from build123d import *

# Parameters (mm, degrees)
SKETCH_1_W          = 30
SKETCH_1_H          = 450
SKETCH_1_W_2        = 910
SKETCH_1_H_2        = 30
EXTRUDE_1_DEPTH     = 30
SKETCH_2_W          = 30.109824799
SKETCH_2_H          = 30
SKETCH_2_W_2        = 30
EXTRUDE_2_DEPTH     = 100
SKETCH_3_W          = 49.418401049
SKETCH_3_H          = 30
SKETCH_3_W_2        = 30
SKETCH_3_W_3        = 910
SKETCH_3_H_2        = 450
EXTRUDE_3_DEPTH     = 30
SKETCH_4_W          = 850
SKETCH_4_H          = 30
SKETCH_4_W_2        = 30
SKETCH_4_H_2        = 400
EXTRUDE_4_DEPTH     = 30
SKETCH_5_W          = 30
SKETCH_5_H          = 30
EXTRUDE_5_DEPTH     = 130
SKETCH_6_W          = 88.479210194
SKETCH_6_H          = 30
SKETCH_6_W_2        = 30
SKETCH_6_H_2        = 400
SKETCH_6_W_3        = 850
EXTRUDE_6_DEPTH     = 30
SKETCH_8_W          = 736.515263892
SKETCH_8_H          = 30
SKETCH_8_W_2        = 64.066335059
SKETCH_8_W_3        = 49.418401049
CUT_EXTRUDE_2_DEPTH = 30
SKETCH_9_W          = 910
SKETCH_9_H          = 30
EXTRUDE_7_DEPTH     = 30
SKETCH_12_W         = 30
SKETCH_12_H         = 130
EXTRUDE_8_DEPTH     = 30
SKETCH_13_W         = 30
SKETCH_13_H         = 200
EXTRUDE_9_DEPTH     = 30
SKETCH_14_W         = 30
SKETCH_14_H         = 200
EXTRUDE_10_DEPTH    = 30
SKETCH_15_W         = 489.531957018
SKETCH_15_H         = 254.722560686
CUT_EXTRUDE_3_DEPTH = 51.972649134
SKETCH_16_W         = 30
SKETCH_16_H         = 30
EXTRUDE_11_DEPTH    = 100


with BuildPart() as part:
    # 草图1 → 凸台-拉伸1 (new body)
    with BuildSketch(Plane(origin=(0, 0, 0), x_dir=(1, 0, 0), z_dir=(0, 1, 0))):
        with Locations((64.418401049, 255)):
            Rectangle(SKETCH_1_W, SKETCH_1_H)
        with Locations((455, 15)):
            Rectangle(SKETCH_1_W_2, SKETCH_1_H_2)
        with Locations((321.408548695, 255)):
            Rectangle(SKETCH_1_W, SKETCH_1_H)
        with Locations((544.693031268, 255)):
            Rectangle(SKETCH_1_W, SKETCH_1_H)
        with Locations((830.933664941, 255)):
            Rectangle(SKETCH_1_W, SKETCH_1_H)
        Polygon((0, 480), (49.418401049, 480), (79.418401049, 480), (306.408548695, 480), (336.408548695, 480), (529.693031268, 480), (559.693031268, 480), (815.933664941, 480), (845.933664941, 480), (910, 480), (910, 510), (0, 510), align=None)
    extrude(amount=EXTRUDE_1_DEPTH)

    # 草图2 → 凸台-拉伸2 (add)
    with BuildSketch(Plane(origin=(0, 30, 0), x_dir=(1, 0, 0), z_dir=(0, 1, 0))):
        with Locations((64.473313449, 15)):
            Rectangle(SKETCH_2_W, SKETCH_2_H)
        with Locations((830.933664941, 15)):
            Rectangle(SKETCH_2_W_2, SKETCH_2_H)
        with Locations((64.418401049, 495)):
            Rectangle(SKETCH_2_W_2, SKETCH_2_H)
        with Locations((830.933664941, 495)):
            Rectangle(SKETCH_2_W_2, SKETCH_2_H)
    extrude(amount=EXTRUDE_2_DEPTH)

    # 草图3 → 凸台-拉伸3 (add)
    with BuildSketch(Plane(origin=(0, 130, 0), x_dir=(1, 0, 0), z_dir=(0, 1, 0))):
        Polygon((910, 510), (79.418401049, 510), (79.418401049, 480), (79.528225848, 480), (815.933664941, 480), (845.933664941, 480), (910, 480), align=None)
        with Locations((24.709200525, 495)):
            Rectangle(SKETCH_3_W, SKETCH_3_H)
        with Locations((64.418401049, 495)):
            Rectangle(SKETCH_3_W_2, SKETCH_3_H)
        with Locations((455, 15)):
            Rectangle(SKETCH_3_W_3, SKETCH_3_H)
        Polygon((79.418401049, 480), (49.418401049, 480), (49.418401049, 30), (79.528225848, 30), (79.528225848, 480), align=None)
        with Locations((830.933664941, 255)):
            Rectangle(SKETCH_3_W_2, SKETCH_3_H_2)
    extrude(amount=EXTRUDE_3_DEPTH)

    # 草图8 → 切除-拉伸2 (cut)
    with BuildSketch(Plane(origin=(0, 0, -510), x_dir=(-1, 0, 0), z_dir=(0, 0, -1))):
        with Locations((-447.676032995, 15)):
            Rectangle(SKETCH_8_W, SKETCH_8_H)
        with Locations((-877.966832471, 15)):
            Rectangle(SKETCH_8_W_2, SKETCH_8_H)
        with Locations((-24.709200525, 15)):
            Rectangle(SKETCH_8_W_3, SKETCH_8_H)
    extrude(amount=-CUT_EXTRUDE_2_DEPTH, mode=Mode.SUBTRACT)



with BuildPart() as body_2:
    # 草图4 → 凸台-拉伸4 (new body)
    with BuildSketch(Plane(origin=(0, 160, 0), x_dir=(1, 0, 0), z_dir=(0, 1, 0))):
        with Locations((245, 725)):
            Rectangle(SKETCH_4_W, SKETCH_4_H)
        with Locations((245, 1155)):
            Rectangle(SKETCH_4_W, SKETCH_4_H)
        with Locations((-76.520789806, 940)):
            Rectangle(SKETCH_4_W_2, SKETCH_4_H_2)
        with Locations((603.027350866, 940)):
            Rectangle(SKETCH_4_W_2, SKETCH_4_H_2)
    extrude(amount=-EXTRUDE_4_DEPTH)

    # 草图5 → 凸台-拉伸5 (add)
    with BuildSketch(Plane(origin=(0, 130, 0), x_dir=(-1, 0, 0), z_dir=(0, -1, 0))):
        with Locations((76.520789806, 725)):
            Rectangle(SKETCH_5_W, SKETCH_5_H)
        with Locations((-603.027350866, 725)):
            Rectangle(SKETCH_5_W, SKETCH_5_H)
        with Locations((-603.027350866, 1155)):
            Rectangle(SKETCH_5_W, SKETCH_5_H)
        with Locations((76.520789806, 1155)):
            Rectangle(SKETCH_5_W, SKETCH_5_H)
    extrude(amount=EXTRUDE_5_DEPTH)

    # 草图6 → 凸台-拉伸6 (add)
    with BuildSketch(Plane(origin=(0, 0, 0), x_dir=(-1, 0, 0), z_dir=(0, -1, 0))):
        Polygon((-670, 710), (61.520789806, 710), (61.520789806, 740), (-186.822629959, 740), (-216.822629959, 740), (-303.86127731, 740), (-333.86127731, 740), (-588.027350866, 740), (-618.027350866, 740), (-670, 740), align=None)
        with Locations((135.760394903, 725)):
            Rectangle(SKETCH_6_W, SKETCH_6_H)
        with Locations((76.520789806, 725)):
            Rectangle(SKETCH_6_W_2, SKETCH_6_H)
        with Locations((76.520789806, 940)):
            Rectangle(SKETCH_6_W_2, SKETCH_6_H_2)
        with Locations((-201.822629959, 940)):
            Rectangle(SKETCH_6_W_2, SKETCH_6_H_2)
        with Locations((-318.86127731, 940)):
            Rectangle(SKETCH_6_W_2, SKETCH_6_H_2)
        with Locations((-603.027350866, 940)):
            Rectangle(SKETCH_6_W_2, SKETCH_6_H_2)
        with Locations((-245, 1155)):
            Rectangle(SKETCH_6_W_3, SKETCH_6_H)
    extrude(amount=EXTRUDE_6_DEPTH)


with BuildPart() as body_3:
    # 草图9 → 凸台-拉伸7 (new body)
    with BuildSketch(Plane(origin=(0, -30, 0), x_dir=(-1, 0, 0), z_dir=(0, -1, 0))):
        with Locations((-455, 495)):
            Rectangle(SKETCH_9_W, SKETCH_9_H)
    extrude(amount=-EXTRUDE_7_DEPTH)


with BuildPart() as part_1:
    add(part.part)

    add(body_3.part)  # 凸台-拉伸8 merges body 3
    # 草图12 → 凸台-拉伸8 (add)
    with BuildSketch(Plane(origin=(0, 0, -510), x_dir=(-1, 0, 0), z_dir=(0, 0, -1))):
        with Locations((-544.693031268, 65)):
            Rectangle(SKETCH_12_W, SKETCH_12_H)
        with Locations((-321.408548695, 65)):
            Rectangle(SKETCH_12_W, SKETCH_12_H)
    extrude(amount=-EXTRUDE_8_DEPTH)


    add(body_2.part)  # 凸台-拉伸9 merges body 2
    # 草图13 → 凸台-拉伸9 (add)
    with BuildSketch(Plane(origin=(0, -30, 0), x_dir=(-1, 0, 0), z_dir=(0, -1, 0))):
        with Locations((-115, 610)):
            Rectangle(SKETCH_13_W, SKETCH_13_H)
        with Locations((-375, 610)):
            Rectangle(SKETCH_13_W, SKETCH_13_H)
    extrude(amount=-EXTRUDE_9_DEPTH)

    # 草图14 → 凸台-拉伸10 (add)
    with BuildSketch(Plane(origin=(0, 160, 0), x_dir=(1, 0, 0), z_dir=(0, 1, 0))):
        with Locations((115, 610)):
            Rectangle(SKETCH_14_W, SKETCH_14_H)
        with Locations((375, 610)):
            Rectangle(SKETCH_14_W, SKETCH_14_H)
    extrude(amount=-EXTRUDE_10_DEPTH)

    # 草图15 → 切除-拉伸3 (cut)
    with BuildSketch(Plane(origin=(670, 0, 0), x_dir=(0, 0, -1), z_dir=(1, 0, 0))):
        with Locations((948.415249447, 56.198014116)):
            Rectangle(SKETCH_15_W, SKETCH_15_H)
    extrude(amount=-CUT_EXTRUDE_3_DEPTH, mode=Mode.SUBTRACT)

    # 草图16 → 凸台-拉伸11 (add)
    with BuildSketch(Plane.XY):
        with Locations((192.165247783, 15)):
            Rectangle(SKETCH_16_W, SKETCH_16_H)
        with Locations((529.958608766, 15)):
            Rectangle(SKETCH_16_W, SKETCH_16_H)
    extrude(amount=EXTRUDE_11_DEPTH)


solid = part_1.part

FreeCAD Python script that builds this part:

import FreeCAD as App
import Part
import Sketcher
from FreeCAD import Vector
Q = App.Units.Quantity

doc = App.newDocument("Part")
body = doc.addObject("PartDesign::Body", "Body")

# Sketch on XZ plane
sketch1 = body.newObject("Sketcher::SketchObject", "Sketch")
sketch1.AttachmentSupport = (doc.getObject("XZ_Plane"), [""])
sketch1.MapMode = "FlatFace"
sketch1.addGeometry([
    Part.LineSegment(Vector(49, -480, 0), Vector(49, -30, 0)),  # 0
    Part.LineSegment(Vector(49, -30, 0), Vector(0, -30, 0)),  # 1
    Part.LineSegment(Vector(0, -30, 0), Vector(0, 0, 0)),  # 2
    Part.LineSegment(Vector(0, 0, 0), Vector(910, 0, 0)),  # 3
    Part.LineSegment(Vector(910, 0, 0), Vector(910, -30, 0)),  # 4
    Part.LineSegment(Vector(910, -30, 0), Vector(846, -30, 0)),  # 5
    Part.LineSegment(Vector(846, -30, 0), Vector(846, -480, 0)),  # 6
    Part.LineSegment(Vector(846, -480, 0), Vector(910, -480, 0)),  # 7
    Part.LineSegment(Vector(910, -480, 0), Vector(910, -510, 0)),  # 8
    Part.LineSegment(Vector(910, -510, 0), Vector(0, -510, 0)),  # 9
    Part.LineSegment(Vector(0, -510, 0), Vector(0, -480, 0)),  # 10
    Part.LineSegment(Vector(0, -480, 0), Vector(49, -480, 0)),  # 11
    Part.LineSegment(Vector(816, -480, 0), Vector(816, -30, 0)),  # 12
    Part.LineSegment(Vector(816, -30, 0), Vector(560, -30, 0)),  # 13
    Part.LineSegment(Vector(560, -30, 0), Vector(560, -480, 0)),  # 14
    Part.LineSegment(Vector(560, -480, 0), Vector(816, -480, 0)),  # 15
    Part.LineSegment(Vector(530, -480, 0), Vector(530, -30, 0)),  # 16
    Part.LineSegment(Vector(530, -30, 0), Vector(336, -30, 0)),  # 17
    Part.LineSegment(Vector(336, -30, 0), Vector(336, -480, 0)),  # 18
    Part.LineSegment(Vector(336, -480, 0), Vector(530, -480, 0)),  # 19
    Part.LineSegment(Vector(306, -480, 0), Vector(306, -30, 0)),  # 20
    Part.LineSegment(Vector(306, -30, 0), Vector(79, -30, 0)),  # 21
    Part.LineSegment(Vector(79, -30, 0), Vector(79, -480, 0)),  # 22
    Part.LineSegment(Vector(79, -480, 0), Vector(306, -480, 0)),  # 23
], False)
sketch1.addConstraint([
    Sketcher.Constraint("Coincident", 0, 2, 1, 1),
    Sketcher.Constraint("Coincident", 1, 2, 2, 1),
    Sketcher.Constraint("Coincident", 2, 2, 3, 1),
    Sketcher.Constraint("Coincident", 3, 2, 4, 1),
    Sketcher.Constraint("Coincident", 4, 2, 5, 1),
    Sketcher.Constraint("Coincident", 5, 2, 6, 1),
    Sketcher.Constraint("Coincident", 6, 2, 7, 1),
    Sketcher.Constraint("Coincident", 7, 2, 8, 1),
    Sketcher.Constraint("Coincident", 8, 2, 9, 1),
    Sketcher.Constraint("Coincident", 9, 2, 10, 1),
    Sketcher.Constraint("Coincident", 10, 2, 11, 1),
    Sketcher.Constraint("Coincident", 11, 2, 0, 1),
    Sketcher.Constraint("Coincident", 12, 2, 13, 1),
    Sketcher.Constraint("Coincident", 13, 2, 14, 1),
    Sketcher.Constraint("Coincident", 14, 2, 15, 1),
    Sketcher.Constraint("Coincident", 15, 2, 12, 1),
    Sketcher.Constraint("Coincident", 16, 2, 17, 1),
    Sketcher.Constraint("Coincident", 17, 2, 18, 1),
    Sketcher.Constraint("Coincident", 18, 2, 19, 1),
    Sketcher.Constraint("Coincident", 19, 2, 16, 1),
    Sketcher.Constraint("Coincident", 20, 2, 21, 1),
    Sketcher.Constraint("Coincident", 21, 2, 22, 1),
    Sketcher.Constraint("Coincident", 22, 2, 23, 1),
    Sketcher.Constraint("Coincident", 23, 2, 20, 1),
    Sketcher.Constraint("Vertical", 0),
    Sketcher.Constraint("Horizontal", 1),
    Sketcher.Constraint("Vertical", 2),
    Sketcher.Constraint("Horizontal", 3),
    Sketcher.Constraint("Vertical", 4),
    Sketcher.Constraint("Horizontal", 5),
    Sketcher.Constraint("Vertical", 6),
    Sketcher.Constraint("Horizontal", 7),
    Sketcher.Constraint("Vertical", 8),
    Sketcher.Constraint("Horizontal", 9),
    Sketcher.Constraint("Vertical", 10),
    Sketcher.Constraint("Horizontal", 11),
    Sketcher.Constraint("Vertical", 12),
    Sketcher.Constraint("Horizontal", 13),
    Sketcher.Constraint("Vertical", 14),
    Sketcher.Constraint("Horizontal", 15),
    Sketcher.Constraint("Vertical", 16),
    Sketcher.Constraint("Horizontal", 17),
    Sketcher.Constraint("Vertical", 18),
    Sketcher.Constraint("Horizontal", 19),
    Sketcher.Constraint("Vertical", 20),
    Sketcher.Constraint("Horizontal", 21),
    Sketcher.Constraint("Vertical", 22),
    Sketcher.Constraint("Horizontal", 23),
    Sketcher.Constraint("Coincident", 2, 2, -1, 1),
    Sketcher.Constraint("PointOnObject", 9, 2, -2),
    Sketcher.Constraint("Horizontal", 1, 2, 4, 2),
    Sketcher.Constraint("Horizontal", 7, 2, 10, 2),
    Sketcher.Constraint("Horizontal", 5, 2, 12, 2),
    Sketcher.Constraint("Horizontal", 11, 2, 14, 2),
    Sketcher.Constraint("Horizontal", 13, 2, 16, 2),
    Sketcher.Constraint("Horizontal", 15, 2, 18, 2),
    Sketcher.Constraint("Horizontal", 17, 2, 20, 2),
    Sketcher.Constraint("Horizontal", 19, 2, 22, 2),
    Sketcher.Constraint("Vertical", 4, 2, 7, 2),
    Sketcher.Constraint("Equal", 4, 8),
    Sketcher.Constraint("DistanceX", 3, 1, 3, 2, Q("910 mm")),
    Sketcher.Constraint("DistanceY", 0, 1, 0, 2, Q("450 mm")),
    Sketcher.Constraint("DistanceY", 2, 1, 2, 2, Q("30 mm")),
    Sketcher.Constraint("DistanceX", 12, 2, 5, 2, Q("30 mm")),
    Sketcher.Constraint("DistanceX", 16, 2, 13, 2, Q("30 mm")),
    Sketcher.Constraint("DistanceX", 20, 2, 17, 2, Q("30 mm")),
    Sketcher.Constraint("DistanceX", 0, 2, 21, 2, Q("30 mm")),
    Sketcher.Constraint("DistanceX", 1, 2, 1, 1, Q("49.418401 mm")),
    Sketcher.Constraint("DistanceX", 5, 2, 5, 1, Q("64.066335 mm")),
    Sketcher.Constraint("DistanceX", 13, 2, 13, 1, Q("256.240634 mm")),
    Sketcher.Constraint("DistanceX", 17, 2, 17, 1, Q("193.284483 mm")),
])
pad1 = body.newObject("PartDesign::Pad", "Pad")
pad1.Profile = sketch1
pad1.Length = 30
pad1.Reversed = True

# Sketch on XZ plane
sketch2 = body.newObject("Sketcher::SketchObject", "Sketch001")
sketch2.AttachmentSupport = (doc.getObject("XZ_Plane"), [""])
sketch2.MapMode = "FlatFace"
sketch2.AttachmentOffset = App.Placement(Vector(0, 0, -30), App.Rotation())
sketch2.addGeometry([
    Part.LineSegment(Vector(49, -30, 0), Vector(49, 0, 0)),  # 0
    Part.LineSegment(Vector(49, 0, 0), Vector(80, 0, 0)),  # 1
    Part.LineSegment(Vector(80, 0, 0), Vector(80, -30, 0)),  # 2
    Part.LineSegment(Vector(80, -30, 0), Vector(49, -30, 0)),  # 3
    Part.LineSegment(Vector(816, -30, 0), Vector(816, 0, 0)),  # 4
    Part.LineSegment(Vector(816, 0, 0), Vector(846, 0, 0)),  # 5
    Part.LineSegment(Vector(846, 0, 0), Vector(846, -30, 0)),  # 6
    Part.LineSegment(Vector(846, -30, 0), Vector(816, -30, 0)),  # 7
    Part.LineSegment(Vector(49, -510, 0), Vector(49, -480, 0)),  # 8
    Part.LineSegment(Vector(49, -480, 0), Vector(79, -480, 0)),  # 9
    Part.LineSegment(Vector(79, -480, 0), Vector(79, -510, 0)),  # 10
    Part.LineSegment(Vector(79, -510, 0), Vector(49, -510, 0)),  # 11
    Part.LineSegment(Vector(816, -510, 0), Vector(816, -480, 0)),  # 12
    Part.LineSegment(Vector(816, -480, 0), Vector(846, -480, 0)),  # 13
    Part.LineSegment(Vector(846, -480, 0), Vector(846, -510, 0)),  # 14
    Part.LineSegment(Vector(846, -510, 0), Vector(816, -510, 0)),  # 15
], False)
sketch2.addConstraint([
    Sketcher.Constraint("Coincident", 0, 2, 1, 1),
    Sketcher.Constraint("Coincident", 1, 2, 2, 1),
    Sketcher.Constraint("Coincident", 2, 2, 3, 1),
    Sketcher.Constraint("Coincident", 3, 2, 0, 1),
    Sketcher.Constraint("Coincident", 4, 2, 5, 1),
    Sketcher.Constraint("Coincident", 5, 2, 6, 1),
    Sketcher.Constraint("Coincident", 6, 2, 7, 1),
    Sketcher.Constraint("Coincident", 7, 2, 4, 1),
    Sketcher.Constraint("Coincident", 8, 2, 9, 1),
    Sketcher.Constraint("Coincident", 9, 2, 10, 1),
    Sketcher.Constraint("Coincident", 10, 2, 11, 1),
    Sketcher.Constraint("Coincident", 11, 2, 8, 1),
    Sketcher.Constraint("Coincident", 12, 2, 13, 1),
    Sketcher.Constraint("Coincident", 13, 2, 14, 1),
    Sketcher.Constraint("Coincident", 14, 2, 15, 1),
    Sketcher.Constraint("Coincident", 15, 2, 12, 1),
    Sketcher.Constraint("Vertical", 0),
    Sketcher.Constraint("Horizontal", 1),
    Sketcher.Constraint("Vertical", 2),
    Sketcher.Constraint("Horizontal", 3),
    Sketcher.Constraint("Vertical", 4),
    Sketcher.Constraint("Horizontal", 5),
    Sketcher.Constraint("Vertical", 6),
    Sketcher.Constraint("Horizontal", 7),
    Sketcher.Constraint("Vertical", 8),
    Sketcher.Constraint("Horizontal", 9),
    Sketcher.Constraint("Vertical", 10),
    Sketcher.Constraint("Horizontal", 11),
    Sketcher.Constraint("Vertical", 12),
    Sketcher.Constraint("Horizontal", 13),
    Sketcher.Constraint("Vertical", 14),
    Sketcher.Constraint("Horizontal", 15),
    Sketcher.Constraint("PointOnObject", 0, 2, -1),
    Sketcher.Constraint("PointOnObject", 4, 2, -1),
    Sketcher.Constraint("Horizontal", 3, 2, 6, 2),
    Sketcher.Constraint("Horizontal", 9, 2, 12, 2),
    Sketcher.Constraint("Horizontal", 11, 2, 14, 2),
    Sketcher.Constraint("Vertical", 3, 2, 8, 2),
    Sketcher.Constraint("Vertical", 7, 2, 12, 2),
    Sketcher.Constraint("Vertical", 6, 2, 13, 2),
    Sketcher.Constraint("Equal", 7, 9),
    Sketcher.Constraint("Equal", 15, 0),
    Sketcher.Constraint("Equal", 6, 8),
    Sketcher.Constraint("DistanceX", 5, 1, 5, 2, Q("30 mm")),
    Sketcher.Constraint("DistanceY", 8, 2, -1, 1, Q("480 mm")),
    Sketcher.Constraint("DistanceX", -1, 1, 0, 2, Q("49.418401 mm")),
    Sketcher.Constraint("DistanceX", 1, 1, 1, 2, Q("30.109825 mm")),
    Sketcher.Constraint("DistanceX", 1, 2, 4, 2, Q("736.405439 mm")),
])
pad2 = body.newObject("PartDesign::Pad", "Pad001")
pad2.Profile = sketch2
pad2.Length = 100
pad2.Reversed = True

# Sketch on XZ plane
sketch3 = body.newObject("Sketcher::SketchObject", "Sketch002")
sketch3.AttachmentSupport = (doc.getObject("XZ_Plane"), [""])
sketch3.MapMode = "FlatFace"
sketch3.AttachmentOffset = App.Placement(Vector(0, 0, -130), App.Rotation())
sketch3.addGeometry([
    Part.LineSegment(Vector(910, -510, 0), Vector(0, -510, 0)),  # 0
    Part.LineSegment(Vector(0, -510, 0), Vector(0, -480, 0)),  # 1
    Part.LineSegment(Vector(0, -480, 0), Vector(49, -480, 0)),  # 2
    Part.LineSegment(Vector(49, -480, 0), Vector(49, -30, 0)),  # 3
    Part.LineSegment(Vector(49, -30, 0), Vector(0, -30, 0)),  # 4
    Part.LineSegment(Vector(0, -30, 0), Vector(0, 0, 0)),  # 5
    Part.LineSegment(Vector(0, 0, 0), Vector(910, 0, 0)),  # 6
    Part.LineSegment(Vector(910, 0, 0), Vector(910, -30, 0)),  # 7
    Part.LineSegment(Vector(910, -30, 0), Vector(846, -30, 0)),  # 8
    Part.LineSegment(Vector(846, -30, 0), Vector(846, -480, 0)),  # 9
    Part.LineSegment(Vector(846, -480, 0), Vector(910, -480, 0)),  # 10
    Part.LineSegment(Vector(910, -480, 0), Vector(910, -510, 0)),  # 11
    Part.LineSegment(Vector(816, -30, 0), Vector(80, -30, 0)),  # 12
    Part.LineSegment(Vector(80, -30, 0), Vector(80, -480, 0)),  # 13
    Part.LineSegment(Vector(80, -480, 0), Vector(816, -480, 0)),  # 14
    Part.LineSegment(Vector(816, -480, 0), Vector(816, -30, 0)),  # 15
], False)
sketch3.addConstraint([
    Sketcher.Constraint("Coincident", 0, 2, 1, 1),
    Sketcher.Constraint("Coincident", 1, 2, 2, 1),
    Sketcher.Constraint("Coincident", 2, 2, 3, 1),
    Sketcher.Constraint("Coincident", 3, 2, 4, 1),
    Sketcher.Constraint("Coincident", 4, 2, 5, 1),
    Sketcher.Constraint("Coincident", 5, 2, 6, 1),
    Sketcher.Constraint("Coincident", 6, 2, 7, 1),
    Sketcher.Constraint("Coincident", 7, 2, 8, 1),
    Sketcher.Constraint("Coincident", 8, 2, 9, 1),
    Sketcher.Constraint("Coincident", 9, 2, 10, 1),
    Sketcher.Constraint("Coincident", 10, 2, 11, 1),
    Sketcher.Constraint("Coincident", 11, 2, 0, 1),
    Sketcher.Constraint("Coincident", 12, 2, 13, 1),
    Sketcher.Constraint("Coincident", 13, 2, 14, 1),
    Sketcher.Constraint("Coincident", 14, 2, 15, 1),
    Sketcher.Constraint("Coincident", 15, 2, 12, 1),
    Sketcher.Constraint("Horizontal", 0),
    Sketcher.Constraint("Vertical", 1),
    Sketcher.Constraint("Horizontal", 2),
    Sketcher.Constraint("Vertical", 3),
    Sketcher.Constraint("Horizontal", 4),
    Sketcher.Constraint("Vertical", 5),
    Sketcher.Constraint("Horizontal", 6),
    Sketcher.Constraint("Vertical", 7),
    Sketcher.Constraint("Horizontal", 8),
    Sketcher.Constraint("Vertical", 9),
    Sketcher.Constraint("Horizontal", 10),
    Sketcher.Constraint("Vertical", 11),
    Sketcher.Constraint("Horizontal", 12),
    Sketcher.Constraint("Vertical", 13),
    Sketcher.Constraint("Horizontal", 14),
    Sketcher.Constraint("Vertical", 15),
    Sketcher.Constraint("Coincident", 5, 2, -1, 1),
    Sketcher.Constraint("PointOnObject", 0, 2, -2),
    Sketcher.Constraint("Horizontal", 4, 2, 7, 2),
    Sketcher.Constraint("Horizontal", 2, 2, 9, 2),
    Sketcher.Constraint("Horizontal", 8, 2, 12, 2),
    Sketcher.Constraint("Horizontal", 10, 2, 13, 2),
    Sketcher.Constraint("Vertical", 7, 2, 10, 2),
    Sketcher.Constraint("Equal", 1, 5),
    Sketcher.Constraint("DistanceX", 0, 2, 0, 1, Q("910 mm")),
    Sketcher.Constraint("DistanceY", 1, 1, 1, 2, Q("30 mm")),
    Sketcher.Constraint("DistanceY", 3, 1, 3, 2, Q("450 mm")),
    Sketcher.Constraint("DistanceX", 14, 2, 9, 2, Q("30 mm")),
    Sketcher.Constraint("DistanceX", 2, 1, 2, 2, Q("49.418401 mm")),
    Sketcher.Constraint("DistanceX", 12, 2, 12, 1, Q("736.405439 mm")),
    Sketcher.Constraint("DistanceX", 8, 2, 8, 1, Q("64.066335 mm")),
])
pad3 = body.newObject("PartDesign::Pad", "Pad002")
pad3.Profile = sketch3
pad3.Length = 30
pad3.Reversed = True

# Sketch on XY plane
sketch4 = body.newObject("Sketcher::SketchObject", "Sketch003")
sketch4.AttachmentSupport = (doc.getObject("XY_Plane"), [""])
sketch4.MapMode = "FlatFace"
sketch4.AttachmentOffset = App.Placement(Vector(0, 0, -510), App.Rotation())
sketch4.addGeometry([
    Part.LineSegment(Vector(816, 30, 0), Vector(816, 0, 0)),  # 0
    Part.LineSegment(Vector(816, 0, 0), Vector(79, 0, 0)),  # 1
    Part.LineSegment(Vector(79, 0, 0), Vector(79, 30, 0)),  # 2
    Part.LineSegment(Vector(79, 30, 0), Vector(816, 30, 0)),  # 3
    Part.LineSegment(Vector(910, 30, 0), Vector(910, 0, 0)),  # 4
    Part.LineSegment(Vector(910, 0, 0), Vector(846, 0, 0)),  # 5
    Part.LineSegment(Vector(846, 0, 0), Vector(846, 30, 0)),  # 6
    Part.LineSegment(Vector(846, 30, 0), Vector(910, 30, 0)),  # 7
    Part.LineSegment(Vector(49, 30, 0), Vector(49, 0, 0)),  # 8
    Part.LineSegment(Vector(49, 0, 0), Vector(0, 0, 0)),  # 9
    Part.LineSegment(Vector(0, 0, 0), Vector(0, 30, 0)),  # 10
    Part.LineSegment(Vector(0, 30, 0), Vector(49, 30, 0)),  # 11
], False)
sketch4.addConstraint([
    Sketcher.Constraint("Coincident", 0, 2, 1, 1),
    Sketcher.Constraint("Coincident", 1, 2, 2, 1),
    Sketcher.Constraint("Coincident", 2, 2, 3, 1),
    Sketcher.Constraint("Coincident", 3, 2, 0, 1),
    Sketcher.Constraint("Coincident", 4, 2, 5, 1),
    Sketcher.Constraint("Coincident", 5, 2, 6, 1),
    Sketcher.Constraint("Coincident", 6, 2, 7, 1),
    Sketcher.Constraint("Coincident", 7, 2, 4, 1),
    Sketcher.Constraint("Coincident", 8, 2, 9, 1),
    Sketcher.Constraint("Coincident", 9, 2, 10, 1),
    Sketcher.Constraint("Coincident", 10, 2, 11, 1),
    Sketcher.Constraint("Coincident", 11, 2, 8, 1),
    Sketcher.Constraint("Vertical", 0),
    Sketcher.Constraint("Horizontal", 1),
    Sketcher.Constraint("Vertical", 2),
    Sketcher.Constraint("Horizontal", 3),
    Sketcher.Constraint("Vertical", 4),
    Sketcher.Constraint("Horizontal", 5),
    Sketcher.Constraint("Vertical", 6),
    Sketcher.Constraint("Horizontal", 7),
    Sketcher.Constraint("Vertical", 8),
    Sketcher.Constraint("Horizontal", 9),
    Sketcher.Constraint("Vertical", 10),
    Sketcher.Constraint("Horizontal", 11),
    Sketcher.Constraint("Coincident", 9, 2, -1, 1),
    Sketcher.Constraint("PointOnObject", 0, 2, -1),
    Sketcher.Constraint("PointOnObject", 4, 2, -1),
    Sketcher.Constraint("Horizontal", 3, 2, 6, 2),
    Sketcher.Constraint("Horizontal", 7, 2, 10, 2),
    Sketcher.Constraint("DistanceY", 0, 2, 0, 1, Q("30 mm")),
    Sketcher.Constraint("DistanceX", -1, 1, 4, 2, Q("910 mm")),
    Sketcher.Constraint("DistanceX", 0, 2, 5, 2, Q("30 mm")),
    Sketcher.Constraint("DistanceX", 8, 2, 1, 2, Q("30 mm")),
    Sketcher.Constraint("DistanceX", 9, 2, 9, 1, Q("49.418401 mm")),
    Sketcher.Constraint("DistanceX", 1, 2, 1, 1, Q("736.515264 mm")),
])
pocket1 = body.newObject("PartDesign::Pocket", "Pocket")
pocket1.Profile = sketch4
pocket1.Length = 30
pocket1.Reversed = True
body2 = doc.addObject("PartDesign::Body", "Body001")

# Sketch on XZ plane
sketch5 = body2.newObject("Sketcher::SketchObject", "Sketch004")
sketch5.AttachmentSupport = (doc.getObject("XZ_Plane001"), [""])
sketch5.MapMode = "FlatFace"
sketch5.AttachmentOffset = App.Placement(Vector(0, 0, -160), App.Rotation())
sketch5.addGeometry([
    Part.LineSegment(Vector(-180, -740, 0), Vector(-180, -710, 0)),  # 0
    Part.LineSegment(Vector(-180, -710, 0), Vector(670, -710, 0)),  # 1
    Part.LineSegment(Vector(670, -710, 0), Vector(670, -740, 0)),  # 2
    Part.LineSegment(Vector(670, -740, 0), Vector(618, -740, 0)),  # 3
    Part.LineSegment(Vector(618, -740, 0), Vector(618, -1140, 0)),  # 4
    Part.LineSegment(Vector(618, -1140, 0), Vector(670, -1140, 0)),  # 5
    Part.LineSegment(Vector(670, -1140, 0), Vector(670, -1170, 0)),  # 6
    Part.LineSegment(Vector(670, -1170, 0), Vector(-180, -1170, 0)),  # 7
    Part.LineSegment(Vector(-180, -1170, 0), Vector(-180, -1140, 0)),  # 8
    Part.LineSegment(Vector(-180, -1140, 0), Vector(-92, -1140, 0)),  # 9
    Part.LineSegment(Vector(-92, -1140, 0), Vector(-92, -740, 0)),  # 10
    Part.LineSegment(Vector(-92, -740, 0), Vector(-180, -740, 0)),  # 11
    Part.LineSegment(Vector(588, -740, 0), Vector(-62, -740, 0)),  # 12
    Part.LineSegment(Vector(-62, -740, 0), Vector(-62, -1140, 0)),  # 13
    Part.LineSegment(Vector(-62, -1140, 0), Vector(588, -1140, 0)),  # 14
    Part.LineSegment(Vector(588, -1140, 0), Vector(588, -740, 0)),  # 15
], False)
sketch5.addConstraint([
    Sketcher.Constraint("Coincident", 0, 2, 1, 1),
    Sketcher.Constraint("Coincident", 1, 2, 2, 1),
    Sketcher.Constraint("Coincident", 2, 2, 3, 1),
    Sketcher.Constraint("Coincident", 3, 2, 4, 1),
    Sketcher.Constraint("Coincident", 4, 2, 5, 1),
    Sketcher.Constraint("Coincident", 5, 2, 6, 1),
    Sketcher.Constraint("Coincident", 6, 2, 7, 1),
    Sketcher.Constraint("Coincident", 7, 2, 8, 1),
    Sketcher.Constraint("Coincident", 8, 2, 9, 1),
    Sketcher.Constraint("Coincident", 9, 2, 10, 1),
    Sketcher.Constraint("Coincident", 10, 2, 11, 1),
    Sketcher.Constraint("Coincident", 11, 2, 0, 1),
    Sketcher.Constraint("Coincident", 12, 2, 13, 1),
    Sketcher.Constraint("Coincident", 13, 2, 14, 1),
    Sketcher.Constraint("Coincident", 14, 2, 15, 1),
    Sketcher.Constraint("Coincident", 15, 2, 12, 1),
    Sketcher.Constraint("Vertical", 0),
    Sketcher.Constraint("Horizontal", 1),
    Sketcher.Constraint("Vertical", 2),
    Sketcher.Constraint("Horizontal", 3),
    Sketcher.Constraint("Vertical", 4),
    Sketcher.Constraint("Horizontal", 5),
    Sketcher.Constraint("Vertical", 6),
    Sketcher.Constraint("Horizontal", 7),
    Sketcher.Constraint("Vertical", 8),
    Sketcher.Constraint("Horizontal", 9),
    Sketcher.Constraint("Vertical", 10),
    Sketcher.Constraint("Horizontal", 11),
    Sketcher.Constraint("Horizontal", 12),
    Sketcher.Constraint("Vertical", 13),
    Sketcher.Constraint("Horizontal", 14),
    Sketcher.Constraint("Vertical", 15),
    Sketcher.Constraint("Horizontal", 5, 2, 8, 2),
    Sketcher.Constraint("Horizontal", 3, 2, 10, 2),
    Sketcher.Constraint("Horizontal", 11, 2, 12, 2),
    Sketcher.Constraint("Horizontal", 9, 2, 13, 2),
    Sketcher.Constraint("Vertical", 2, 2, 5, 2),
    Sketcher.Constraint("Vertical", 0, 2, 7, 2),
    Sketcher.Constraint("Equal", 2, 6),
    Sketcher.Constraint("DistanceX", 1, 1, 1, 2, Q("850 mm")),
    Sketcher.Constraint("DistanceY", 0, 1, 0, 2, Q("30 mm")),
    Sketcher.Constraint("DistanceY", 4, 2, 4, 1, Q("400 mm")),
    Sketcher.Constraint("DistanceX", 0, 2, -1, 1, Q("180 mm")),
    Sketcher.Constraint("DistanceY", 0, 2, -1, 1, Q("710 mm")),
    Sketcher.Constraint("DistanceX", 10, 2, 12, 2, Q("30 mm")),
    Sketcher.Constraint("DistanceX", 14, 2, 4, 2, Q("30 mm")),
    Sketcher.Constraint("DistanceX", 3, 2, 3, 1, Q("51.972649 mm")),
    Sketcher.Constraint("DistanceX", 9, 1, 9, 2, Q("88.47921 mm")),
])
pad4 = body2.newObject("PartDesign::Pad", "Pad003")
pad4.Profile = sketch5
pad4.Length = 30

# Sketch on XZ plane
sketch6 = body2.newObject("Sketcher::SketchObject", "Sketch005")
sketch6.AttachmentSupport = (doc.getObject("XZ_Plane001"), [""])
sketch6.MapMode = "FlatFace"
sketch6.AttachmentOffset = App.Placement(Vector(0, 0, -130), App.Rotation())
sketch6.addGeometry([
    Part.LineSegment(Vector(-62, -740, 0), Vector(-62, -710, 0)),  # 0
    Part.LineSegment(Vector(-62, -710, 0), Vector(-92, -710, 0)),  # 1
    Part.LineSegment(Vector(-92, -710, 0), Vector(-92, -740, 0)),  # 2
    Part.LineSegment(Vector(-92, -740, 0), Vector(-62, -740, 0)),  # 3
    Part.LineSegment(Vector(618, -740, 0), Vector(618, -710, 0)),  # 4
    Part.LineSegment(Vector(618, -710, 0), Vector(588, -710, 0)),  # 5
    Part.LineSegment(Vector(588, -710, 0), Vector(588, -740, 0)),  # 6
    Part.LineSegment(Vector(588, -740, 0), Vector(618, -740, 0)),  # 7
    Part.LineSegment(Vector(618, -1170, 0), Vector(618, -1140, 0)),  # 8
    Part.LineSegment(Vector(618, -1140, 0), Vector(588, -1140, 0)),  # 9
    Part.LineSegment(Vector(588, -1140, 0), Vector(588, -1170, 0)),  # 10
    Part.LineSegment(Vector(588, -1170, 0), Vector(618, -1170, 0)),  # 11
    Part.LineSegment(Vector(-62, -1170, 0), Vector(-62, -1140, 0)),  # 12
    Part.LineSegment(Vector(-62, -1140, 0), Vector(-92, -1140, 0)),  # 13
    Part.LineSegment(Vector(-92, -1140, 0), Vector(-92, -1170, 0)),  # 14
    Part.LineSegment(Vector(-92, -1170, 0), Vector(-62, -1170, 0)),  # 15
], False)
sketch6.addConstraint([
    Sketcher.Constraint("Coincident", 0, 2, 1, 1),
    Sketcher.Constraint("Coincident", 1, 2, 2, 1),
    Sketcher.Constraint("Coincident", 2, 2, 3, 1),
    Sketcher.Constraint("Coincident", 3, 2, 0, 1),
    Sketcher.Constraint("Coincident", 4, 2, 5, 1),
    Sketcher.Constraint("Coincident", 5, 2, 6, 1),
    Sketcher.Constraint("Coincident", 6, 2, 7, 1),
    Sketcher.Constraint("Coincident", 7, 2, 4, 1),
    Sketcher.Constraint("Coincident", 8, 2, 9, 1),
    Sketcher.Constraint("Coincident", 9, 2, 10, 1),
    Sketcher.Constraint("Coincident", 10, 2, 11, 1),
    Sketcher.Constraint("Coincident", 11, 2, 8, 1),
    Sketcher.Constraint("Coincident", 12, 2, 13, 1),
    Sketcher.Constraint("Coincident", 13, 2, 14, 1),
    Sketcher.Constraint("Coincident", 14, 2, 15, 1),
    Sketcher.Constraint("Coincident", 15, 2, 12, 1),
    Sketcher.Constraint("Vertical", 0),
    Sketcher.Constraint("Horizontal", 1),
    Sketcher.Constraint("Vertical", 2),
    Sketcher.Constraint("Horizontal", 3),
    Sketcher.Constraint("Vertical", 4),
    Sketcher.Constraint("Horizontal", 5),
    Sketcher.Constraint("Vertical", 6),
    Sketcher.Constraint("Horizontal", 7),
    Sketcher.Constraint("Vertical", 8),
    Sketcher.Constraint("Horizontal", 9),
    Sketcher.Constraint("Vertical", 10),
    Sketcher.Constraint("Horizontal", 11),
    Sketcher.Constraint("Vertical", 12),
    Sketcher.Constraint("Horizontal", 13),
    Sketcher.Constraint("Vertical", 14),
    Sketcher.Constraint("Horizontal", 15),
    Sketcher.Constraint("Horizontal", 1, 2, 4, 2),
    Sketcher.Constraint("Horizontal", 3, 2, 6, 2),
    Sketcher.Constraint("Horizontal", 9, 2, 12, 2),
    Sketcher.Constraint("Horizontal", 11, 2, 14, 2),
    Sketcher.Constraint("Vertical", 7, 2, 8, 2),
    Sketcher.Constraint("Vertical", 6, 2, 9, 2),
    Sketcher.Constraint("Vertical", 3, 2, 12, 2),
    Sketcher.Constraint("Vertical", 2, 2, 13, 2),
    Sketcher.Constraint("Equal", 3, 5),
    Sketcher.Constraint("Equal", 15, 0),
    Sketcher.Constraint("Equal", 6, 8),
    Sketcher.Constraint("DistanceX", 1, 2, 1, 1, Q("30 mm")),
    Sketcher.Constraint("DistanceY", 0, 2, -1, 1, Q("710 mm")),
    Sketcher.Constraint("DistanceY", 8, 2, -1, 1, Q("1140 mm")),
    Sketcher.Constraint("DistanceX", 0, 2, -1, 1, Q("61.52079 mm")),
    Sketcher.Constraint("DistanceX", -1, 1, 4, 2, Q("618.027351 mm")),
])
pad5 = body2.newObject("PartDesign::Pad", "Pad004")
pad5.Profile = sketch6
pad5.Length = 130

# Sketch on XZ plane
sketch7 = body2.newObject("Sketcher::SketchObject", "Sketch006")
sketch7.AttachmentSupport = (doc.getObject("XZ_Plane001"), [""])
sketch7.MapMode = "FlatFace"
sketch7.addGeometry([
    Part.LineSegment(Vector(670, -710, 0), Vector(-180, -710, 0)),  # 0
    Part.LineSegment(Vector(-180, -710, 0), Vector(-180, -740, 0)),  # 1
    Part.LineSegment(Vector(-180, -740, 0), Vector(-92, -740, 0)),  # 2
    Part.LineSegment(Vector(-92, -740, 0), Vector(-92, -1140, 0)),  # 3
    Part.LineSegment(Vector(-92, -1140, 0), Vector(-180, -1140, 0)),  # 4
    Part.LineSegment(Vector(-180, -1140, 0), Vector(-180, -1170, 0)),  # 5
    Part.LineSegment(Vector(-180, -1170, 0), Vector(670, -1170, 0)),  # 6
    Part.LineSegment(Vector(670, -1170, 0), Vector(670, -1140, 0)),  # 7
    Part.LineSegment(Vector(670, -1140, 0), Vector(618, -1140, 0)),  # 8
    Part.LineSegment(Vector(618, -1140, 0), Vector(618, -740, 0)),  # 9
    Part.LineSegment(Vector(618, -740, 0), Vector(670, -740, 0)),  # 10
    Part.LineSegment(Vector(670, -740, 0), Vector(670, -710, 0)),  # 11
    Part.LineSegment(Vector(-62, -1140, 0), Vector(-62, -740, 0)),  # 12
    Part.LineSegment(Vector(-62, -740, 0), Vector(187, -740, 0)),  # 13
    Part.LineSegment(Vector(187, -740, 0), Vector(187, -1140, 0)),  # 14
    Part.LineSegment(Vector(187, -1140, 0), Vector(-62, -1140, 0)),  # 15
    Part.LineSegment(Vector(217, -1140, 0), Vector(217, -740, 0)),  # 16
    Part.LineSegment(Vector(217, -740, 0), Vector(304, -740, 0)),  # 17
    Part.LineSegment(Vector(304, -740, 0), Vector(304, -1140, 0)),  # 18
    Part.LineSegment(Vector(304, -1140, 0), Vector(217, -1140, 0)),  # 19
    Part.LineSegment(Vector(334, -1140, 0), Vector(334, -740, 0)),  # 20
    Part.LineSegment(Vector(334, -740, 0), Vector(588, -740, 0)),  # 21
    Part.LineSegment(Vector(588, -740, 0), Vector(588, -1140, 0)),  # 22
    Part.LineSegment(Vector(588, -1140, 0), Vector(334, -1140, 0)),  # 23
], False)
sketch7.addConstraint([
    Sketcher.Constraint("Coincident", 0, 2, 1, 1),
    Sketcher.Constraint("Coincident", 1, 2, 2, 1),
    Sketcher.Constraint("Coincident", 2, 2, 3, 1),
    Sketcher.Constraint("Coincident", 3, 2, 4, 1),
    Sketcher.Constraint("Coincident", 4, 2, 5, 1),
    Sketcher.Constraint("Coincident", 5, 2, 6, 1),
    Sketcher.Constraint("Coincident", 6, 2, 7, 1),
    Sketcher.Constraint("Coincident", 7, 2, 8, 1),
    Sketcher.Constraint("Coincident", 8, 2, 9, 1),
    Sketcher.Constraint("Coincident", 9, 2, 10, 1),
    Sketcher.Constraint("Coincident", 10, 2, 11, 1),
    Sketcher.Constraint("Coincident", 11, 2, 0, 1),
    Sketcher.Constraint("Coincident", 12, 2, 13, 1),
    Sketcher.Constraint("Coincident", 13, 2, 14, 1),
    Sketcher.Constraint("Coincident", 14, 2, 15, 1),
    Sketcher.Constraint("Coincident", 15, 2, 12, 1),
    Sketcher.Constraint("Coincident", 16, 2, 17, 1),
    Sketcher.Constraint("Coincident", 17, 2, 18, 1),
    Sketcher.Constraint("Coincident", 18, 2, 19, 1),
    Sketcher.Constraint("Coincident", 19, 2, 16, 1),
    Sketcher.Constraint("Coincident", 20, 2, 21, 1),
    Sketcher.Constraint("Coincident", 21, 2, 22, 1),
    Sketcher.Constraint("Coincident", 22, 2, 23, 1),
    Sketcher.Constraint("Coincident", 23, 2, 20, 1),
    Sketcher.Constraint("Horizontal", 0),
    Sketcher.Constraint("Vertical", 1),
    Sketcher.Constraint("Horizontal", 2),
    Sketcher.Constraint("Vertical", 3),
    Sketcher.Constraint("Horizontal", 4),
    Sketcher.Constraint("Vertical", 5),
    Sketcher.Constraint("Horizontal", 6),
    Sketcher.Constraint("Vertical", 7),
    Sketcher.Constraint("Horizontal", 8),
    Sketcher.Constraint("Vertical", 9),
    Sketcher.Constraint("Horizontal", 10),
    Sketcher.Constraint("Vertical", 11),
    Sketcher.Constraint("Vertical", 12),
    Sketcher.Constraint("Horizontal", 13),
    Sketcher.Constraint("Vertical", 14),
    Sketcher.Constraint("Horizontal", 15),
    Sketcher.Constraint("Vertical", 16),
    Sketcher.Constraint("Horizontal", 17),
    Sketcher.Constraint("Vertical", 18),
    Sketcher.Constraint("Horizontal", 19),
    Sketcher.Constraint("Vertical", 20),
    Sketcher.Constraint("Horizontal", 21),
    Sketcher.Constraint("Vertical", 22),
    Sketcher.Constraint("Horizontal", 23),
    Sketcher.Constraint("Horizontal", 4, 2, 7, 2),
    Sketcher.Constraint("Horizontal", 2, 2, 9, 2),
    Sketcher.Constraint("Horizontal", 10, 2, 12, 2),
    Sketcher.Constraint("Horizontal", 8, 2, 14, 2),
    Sketcher.Constraint("Horizontal", 13, 2, 16, 2),
    Sketcher.Constraint("Horizontal", 15, 2, 18, 2),
    Sketcher.Constraint("Horizontal", 17, 2, 20, 2),
    Sketcher.Constraint("Horizontal", 19, 2, 22, 2),
    Sketcher.Constraint("Vertical", 1, 2, 4, 2),
    Sketcher.Constraint("Vertical", 7, 2, 10, 2),
    Sketcher.Constraint("Equal", 1, 5),
    Sketcher.Constraint("DistanceX", 0, 2, 0, 1, Q("850 mm")),
    Sketcher.Constraint("DistanceY", 1, 2, 1, 1, Q("30 mm")),
    Sketcher.Constraint("DistanceY", 3, 2, 3, 1, Q("400 mm")),
    Sketcher.Constraint("DistanceX", 0, 2, -1, 1, Q("180 mm")),
    Sketcher.Constraint("DistanceY", 0, 2, -1, 1, Q("710 mm")),
    Sketcher.Constraint("DistanceX", 2, 2, 12, 2, Q("30 mm")),
    Sketcher.Constraint("DistanceX", 13, 2, 16, 2, Q("30 mm")),
    Sketcher.Constraint("DistanceX", 17, 2, 20, 2, Q("30 mm")),
    Sketcher.Constraint("DistanceX", 21, 2, 9, 2, Q("30 mm")),
    Sketcher.Constraint("DistanceX", 2, 1, 2, 2, Q("88.47921 mm")),
    Sketcher.Constraint("DistanceX", 8, 2, 8, 1, Q("51.972649 mm")),
    Sketcher.Constraint("DistanceX", 13, 1, 13, 2, Q("248.34342 mm")),
    Sketcher.Constraint("DistanceX", 17, 1, 17, 2, Q("87.038647 mm")),
])
pad6 = body2.newObject("PartDesign::Pad", "Pad005")
pad6.Profile = sketch7
pad6.Length = 30
body3 = doc.addObject("PartDesign::Body", "Body002")

# Sketch on XZ plane
sketch8 = body3.newObject("Sketcher::SketchObject", "Sketch007")
sketch8.AttachmentSupport = (doc.getObject("XZ_Plane002"), [""])
sketch8.MapMode = "FlatFace"
sketch8.AttachmentOffset = App.Placement(Vector(0, 0, 30), App.Rotation())
sketch8.addGeometry([
    Part.LineSegment(Vector(910, -510, 0), Vector(910, -480, 0)),
    Part.LineSegment(Vector(910, -480, 0), Vector(0, -480, 0)),
    Part.LineSegment(Vector(0, -480, 0), Vector(0, -510, 0)),
    Part.LineSegment(Vector(0, -510, 0), Vector(910, -510, 0)),
], False)
sketch8.addConstraint([
    Sketcher.Constraint("Coincident", 0, 2, 1, 1),
    Sketcher.Constraint("Coincident", 1, 2, 2, 1),
    Sketcher.Constraint("Coincident", 2, 2, 3, 1),
    Sketcher.Constraint("Coincident", 3, 2, 0, 1),
    Sketcher.Constraint("Vertical", 0),
    Sketcher.Constraint("Horizontal", 1),
    Sketcher.Constraint("Vertical", 2),
    Sketcher.Constraint("Horizontal", 3),
    Sketcher.Constraint("PointOnObject", 1, 2, -2),
    Sketcher.Constraint("DistanceX", 1, 2, 1, 1, Q("910 mm")),
    Sketcher.Constraint("DistanceY", 0, 1, 0, 2, Q("30 mm")),
    Sketcher.Constraint("DistanceY", 0, 2, -1, 1, Q("480 mm")),
])
pad7 = body3.newObject("PartDesign::Pad", "Pad006")
pad7.Profile = sketch8
pad7.Length = 30
pad7.Reversed = True
body.AllowCompound = True
doc.recompute()

boolean = body.newObject("PartDesign::Boolean", "Boolean")
boolean.Type = "Fuse"
boolean.addObjects([body3])

# Sketch on XY plane
sketch9 = body.newObject("Sketcher::SketchObject", "Sketch008")
sketch9.AttachmentSupport = (doc.getObject("XY_Plane"), [""])
sketch9.MapMode = "FlatFace"
sketch9.AttachmentOffset = App.Placement(Vector(0, 0, -510), App.Rotation())
sketch9.addGeometry([
    Part.LineSegment(Vector(560, 130, 0), Vector(560, 0, 0)),  # 0
    Part.LineSegment(Vector(560, 0, 0), Vector(530, 0, 0)),  # 1
    Part.LineSegment(Vector(530, 0, 0), Vector(530, 130, 0)),  # 2
    Part.LineSegment(Vector(530, 130, 0), Vector(560, 130, 0)),  # 3
    Part.LineSegment(Vector(336, 130, 0), Vector(336, 0, 0)),  # 4
    Part.LineSegment(Vector(336, 0, 0), Vector(306, 0, 0)),  # 5
    Part.LineSegment(Vector(306, 0, 0), Vector(306, 130, 0)),  # 6
    Part.LineSegment(Vector(306, 130, 0), Vector(336, 130, 0)),  # 7
], False)
sketch9.addConstraint([
    Sketcher.Constraint("Coincident", 0, 2, 1, 1),
    Sketcher.Constraint("Coincident", 1, 2, 2, 1),
    Sketcher.Constraint("Coincident", 2, 2, 3, 1),
    Sketcher.Constraint("Coincident", 3, 2, 0, 1),
    Sketcher.Constraint("Coincident", 4, 2, 5, 1),
    Sketcher.Constraint("Coincident", 5, 2, 6, 1),
    Sketcher.Constraint("Coincident", 6, 2, 7, 1),
    Sketcher.Constraint("Coincident", 7, 2, 4, 1),
    Sketcher.Constraint("Vertical", 0),
    Sketcher.Constraint("Horizontal", 1),
    Sketcher.Constraint("Vertical", 2),
    Sketcher.Constraint("Horizontal", 3),
    Sketcher.Constraint("Vertical", 4),
    Sketcher.Constraint("Horizontal", 5),
    Sketcher.Constraint("Vertical", 6),
    Sketcher.Constraint("Horizontal", 7),
    Sketcher.Constraint("PointOnObject", 0, 2, -1),
    Sketcher.Constraint("PointOnObject", 4, 2, -1),
    Sketcher.Constraint("Horizontal", 3, 2, 6, 2),
    Sketcher.Constraint("Equal", 3, 5),
    Sketcher.Constraint("DistanceX", 1, 2, 1, 1, Q("30 mm")),
    Sketcher.Constraint("DistanceY", 0, 2, 0, 1, Q("130 mm")),
    Sketcher.Constraint("DistanceX", -1, 1, 0, 2, Q("559.693031 mm")),
    Sketcher.Constraint("DistanceX", -1, 1, 4, 2, Q("336.408549 mm")),
])
pad8 = body.newObject("PartDesign::Pad", "Pad007")
pad8.Profile = sketch9
pad8.Length = 30
doc.recompute()

boolean2 = body.newObject("PartDesign::Boolean", "Boolean001")
boolean2.Type = "Fuse"
boolean2.addObjects([body2])

# Sketch on XZ plane
sketch10 = body.newObject("Sketcher::SketchObject", "Sketch009")
sketch10.AttachmentSupport = (doc.getObject("XZ_Plane"), [""])
sketch10.MapMode = "FlatFace"
sketch10.AttachmentOffset = App.Placement(Vector(0, 0, 30), App.Rotation())
sketch10.addGeometry([
    Part.LineSegment(Vector(130, -710, 0), Vector(130, -510, 0)),  # 0
    Part.LineSegment(Vector(130, -510, 0), Vector(100, -510, 0)),  # 1
    Part.LineSegment(Vector(100, -510, 0), Vector(100, -710, 0)),  # 2
    Part.LineSegment(Vector(100, -710, 0), Vector(130, -710, 0)),  # 3
    Part.LineSegment(Vector(390, -710, 0), Vector(390, -510, 0)),  # 4
    Part.LineSegment(Vector(390, -510, 0), Vector(360, -510, 0)),  # 5
    Part.LineSegment(Vector(360, -510, 0), Vector(360, -710, 0)),  # 6
    Part.LineSegment(Vector(360, -710, 0), Vector(390, -710, 0)),  # 7
], False)
sketch10.addConstraint([
    Sketcher.Constraint("Coincident", 0, 2, 1, 1),
    Sketcher.Constraint("Coincident", 1, 2, 2, 1),
    Sketcher.Constraint("Coincident", 2, 2, 3, 1),
    Sketcher.Constraint("Coincident", 3, 2, 0, 1),
    Sketcher.Constraint("Coincident", 4, 2, 5, 1),
    Sketcher.Constraint("Coincident", 5, 2, 6, 1),
    Sketcher.Constraint("Coincident", 6, 2, 7, 1),
    Sketcher.Constraint("Coincident", 7, 2, 4, 1),
    Sketcher.Constraint("Vertical", 0),
    Sketcher.Constraint("Horizontal", 1),
    Sketcher.Constraint("Vertical", 2),
    Sketcher.Constraint("Horizontal", 3),
    Sketcher.Constraint("Vertical", 4),
    Sketcher.Constraint("Horizontal", 5),
    Sketcher.Constraint("Vertical", 6),
    Sketcher.Constraint("Horizontal", 7),
    Sketcher.Constraint("Horizontal", 1, 2, 4, 2),
    Sketcher.Constraint("Horizontal", 3, 2, 6, 2),
    Sketcher.Constraint("Equal", 3, 5),
    Sketcher.Constraint("DistanceX", 1, 2, 1, 1, Q("30 mm")),
    Sketcher.Constraint("DistanceY", 0, 1, 0, 2, Q("200 mm")),
    Sketcher.Constraint("DistanceX", -1, 1, 0, 2, Q("130 mm")),
    Sketcher.Constraint("DistanceY", 0, 2, -1, 1, Q("510 mm")),
    Sketcher.Constraint("DistanceX", -1, 1, 4, 2, Q("390 mm")),
])
pad9 = body.newObject("PartDesign::Pad", "Pad008")
pad9.Profile = sketch10
pad9.Length = 30
pad9.Reversed = True

# Sketch on XZ plane
sketch11 = body.newObject("Sketcher::SketchObject", "Sketch010")
sketch11.AttachmentSupport = (doc.getObject("XZ_Plane"), [""])
sketch11.MapMode = "FlatFace"
sketch11.AttachmentOffset = App.Placement(Vector(0, 0, -160), App.Rotation())
sketch11.addGeometry([
    Part.LineSegment(Vector(100, -710, 0), Vector(100, -510, 0)),  # 0
    Part.LineSegment(Vector(100, -510, 0), Vector(130, -510, 0)),  # 1
    Part.LineSegment(Vector(130, -510, 0), Vector(130, -710, 0)),  # 2
    Part.LineSegment(Vector(130, -710, 0), Vector(100, -710, 0)),  # 3
    Part.LineSegment(Vector(360, -710, 0), Vector(360, -510, 0)),  # 4
    Part.LineSegment(Vector(360, -510, 0), Vector(390, -510, 0)),  # 5
    Part.LineSegment(Vector(390, -510, 0), Vector(390, -710, 0)),  # 6
    Part.LineSegment(Vector(390, -710, 0), Vector(360, -710, 0)),  # 7
], False)
sketch11.addConstraint([
    Sketcher.Constraint("Coincident", 0, 2, 1, 1),
    Sketcher.Constraint("Coincident", 1, 2, 2, 1),
    Sketcher.Constraint("Coincident", 2, 2, 3, 1),
    Sketcher.Constraint("Coincident", 3, 2, 0, 1),
    Sketcher.Constraint("Coincident", 4, 2, 5, 1),
    Sketcher.Constraint("Coincident", 5, 2, 6, 1),
    Sketcher.Constraint("Coincident", 6, 2, 7, 1),
    Sketcher.Constraint("Coincident", 7, 2, 4, 1),
    Sketcher.Constraint("Vertical", 0),
    Sketcher.Constraint("Horizontal", 1),
    Sketcher.Constraint("Vertical", 2),
    Sketcher.Constraint("Horizontal", 3),
    Sketcher.Constraint("Vertical", 4),
    Sketcher.Constraint("Horizontal", 5),
    Sketcher.Constraint("Vertical", 6),
    Sketcher.Constraint("Horizontal", 7),
    Sketcher.Constraint("Horizontal", 1, 2, 4, 2),
    Sketcher.Constraint("Horizontal", 3, 2, 6, 2),
    Sketcher.Constraint("Equal", 3, 5),
    Sketcher.Constraint("DistanceX", 1, 1, 1, 2, Q("30 mm")),
    Sketcher.Constraint("DistanceY", 0, 1, 0, 2, Q("200 mm")),
    Sketcher.Constraint("DistanceX", -1, 1, 0, 2, Q("100 mm")),
    Sketcher.Constraint("DistanceY", 0, 2, -1, 1, Q("510 mm")),
    Sketcher.Constraint("DistanceX", -1, 1, 4, 2, Q("360 mm")),
])
pad10 = body.newObject("PartDesign::Pad", "Pad009")
pad10.Profile = sketch11
pad10.Length = 30

# Sketch on YZ plane
sketch12 = body.newObject("Sketcher::SketchObject", "Sketch011")
sketch12.AttachmentSupport = (doc.getObject("YZ_Plane"), [""])
sketch12.MapMode = "FlatFace"
sketch12.AttachmentOffset = App.Placement(Vector(0, 0, 670), App.Rotation())
sketch12.addGeometry([
    Part.LineSegment(Vector(184, -704, 0), Vector(-71, -704, 0)),
    Part.LineSegment(Vector(-71, -704, 0), Vector(-71, -1193, 0)),
    Part.LineSegment(Vector(-71, -1193, 0), Vector(184, -1193, 0)),
    Part.LineSegment(Vector(184, -1193, 0), Vector(184, -704, 0)),
], False)
sketch12.addConstraint([
    Sketcher.Constraint("Coincident", 0, 2, 1, 1),
    Sketcher.Constraint("Coincident", 1, 2, 2, 1),
    Sketcher.Constraint("Coincident", 2, 2, 3, 1),
    Sketcher.Constraint("Coincident", 3, 2, 0, 1),
    Sketcher.Constraint("Horizontal", 0),
    Sketcher.Constraint("Vertical", 1),
    Sketcher.Constraint("Horizontal", 2),
    Sketcher.Constraint("Vertical", 3),
    Sketcher.Constraint("DistanceX", 0, 2, 0, 1, Q("254.722561 mm")),
    Sketcher.Constraint("DistanceY", 1, 2, 1, 1, Q("489.531957 mm")),
    Sketcher.Constraint("DistanceY", 0, 2, -1, 1, Q("703.649271 mm")),
    Sketcher.Constraint("DistanceX", 0, 2, -1, 1, Q("71.163266 mm")),
])
pocket2 = body.newObject("PartDesign::Pocket", "Pocket001")
pocket2.Profile = sketch12
pocket2.Length = 51.972649

# Sketch on XY plane
sketch13 = body.newObject("Sketcher::SketchObject", "Sketch012")
sketch13.AttachmentSupport = (doc.getObject("XY_Plane"), [""])
sketch13.MapMode = "FlatFace"
sketch13.addGeometry([
    Part.LineSegment(Vector(177, 30, 0), Vector(177, 0, 0)),  # 0
    Part.LineSegment(Vector(177, 0, 0), Vector(207, 0, 0)),  # 1
    Part.LineSegment(Vector(207, 0, 0), Vector(207, 30, 0)),  # 2
    Part.LineSegment(Vector(207, 30, 0), Vector(177, 30, 0)),  # 3
    Part.LineSegment(Vector(515, 30, 0), Vector(515, 0, 0)),  # 4
    Part.LineSegment(Vector(515, 0, 0), Vector(545, 0, 0)),  # 5
    Part.LineSegment(Vector(545, 0, 0), Vector(545, 30, 0)),  # 6
    Part.LineSegment(Vector(545, 30, 0), Vector(515, 30, 0)),  # 7
], False)
sketch13.addConstraint([
    Sketcher.Constraint("Coincident", 0, 2, 1, 1),
    Sketcher.Constraint("Coincident", 1, 2, 2, 1),
    Sketcher.Constraint("Coincident", 2, 2, 3, 1),
    Sketcher.Constraint("Coincident", 3, 2, 0, 1),
    Sketcher.Constraint("Coincident", 4, 2, 5, 1),
    Sketcher.Constraint("Coincident", 5, 2, 6, 1),
    Sketcher.Constraint("Coincident", 6, 2, 7, 1),
    Sketcher.Constraint("Coincident", 7, 2, 4, 1),
    Sketcher.Constraint("Vertical", 0),
    Sketcher.Constraint("Horizontal", 1),
    Sketcher.Constraint("Vertical", 2),
    Sketcher.Constraint("Horizontal", 3),
    Sketcher.Constraint("Vertical", 4),
    Sketcher.Constraint("Horizontal", 5),
    Sketcher.Constraint("Vertical", 6),
    Sketcher.Constraint("Horizontal", 7),
    Sketcher.Constraint("PointOnObject", 0, 2, -1),
    Sketcher.Constraint("PointOnObject", 4, 2, -1),
    Sketcher.Constraint("Horizontal", 3, 2, 6, 2),
    Sketcher.Constraint("Equal", 3, 5),
    Sketcher.Constraint("Equal", 7, 0),
    Sketcher.Constraint("DistanceX", 1, 1, 1, 2, Q("30 mm")),
    Sketcher.Constraint("DistanceX", -1, 1, 4, 2, Q("514.958609 mm")),
    Sketcher.Constraint("DistanceX", 1, 2, 4, 2, Q("307.793361 mm")),
])
pad11 = body.newObject("PartDesign::Pad", "Pad010")
pad11.Profile = sketch13
pad11.Length = 100

doc.recompute()
